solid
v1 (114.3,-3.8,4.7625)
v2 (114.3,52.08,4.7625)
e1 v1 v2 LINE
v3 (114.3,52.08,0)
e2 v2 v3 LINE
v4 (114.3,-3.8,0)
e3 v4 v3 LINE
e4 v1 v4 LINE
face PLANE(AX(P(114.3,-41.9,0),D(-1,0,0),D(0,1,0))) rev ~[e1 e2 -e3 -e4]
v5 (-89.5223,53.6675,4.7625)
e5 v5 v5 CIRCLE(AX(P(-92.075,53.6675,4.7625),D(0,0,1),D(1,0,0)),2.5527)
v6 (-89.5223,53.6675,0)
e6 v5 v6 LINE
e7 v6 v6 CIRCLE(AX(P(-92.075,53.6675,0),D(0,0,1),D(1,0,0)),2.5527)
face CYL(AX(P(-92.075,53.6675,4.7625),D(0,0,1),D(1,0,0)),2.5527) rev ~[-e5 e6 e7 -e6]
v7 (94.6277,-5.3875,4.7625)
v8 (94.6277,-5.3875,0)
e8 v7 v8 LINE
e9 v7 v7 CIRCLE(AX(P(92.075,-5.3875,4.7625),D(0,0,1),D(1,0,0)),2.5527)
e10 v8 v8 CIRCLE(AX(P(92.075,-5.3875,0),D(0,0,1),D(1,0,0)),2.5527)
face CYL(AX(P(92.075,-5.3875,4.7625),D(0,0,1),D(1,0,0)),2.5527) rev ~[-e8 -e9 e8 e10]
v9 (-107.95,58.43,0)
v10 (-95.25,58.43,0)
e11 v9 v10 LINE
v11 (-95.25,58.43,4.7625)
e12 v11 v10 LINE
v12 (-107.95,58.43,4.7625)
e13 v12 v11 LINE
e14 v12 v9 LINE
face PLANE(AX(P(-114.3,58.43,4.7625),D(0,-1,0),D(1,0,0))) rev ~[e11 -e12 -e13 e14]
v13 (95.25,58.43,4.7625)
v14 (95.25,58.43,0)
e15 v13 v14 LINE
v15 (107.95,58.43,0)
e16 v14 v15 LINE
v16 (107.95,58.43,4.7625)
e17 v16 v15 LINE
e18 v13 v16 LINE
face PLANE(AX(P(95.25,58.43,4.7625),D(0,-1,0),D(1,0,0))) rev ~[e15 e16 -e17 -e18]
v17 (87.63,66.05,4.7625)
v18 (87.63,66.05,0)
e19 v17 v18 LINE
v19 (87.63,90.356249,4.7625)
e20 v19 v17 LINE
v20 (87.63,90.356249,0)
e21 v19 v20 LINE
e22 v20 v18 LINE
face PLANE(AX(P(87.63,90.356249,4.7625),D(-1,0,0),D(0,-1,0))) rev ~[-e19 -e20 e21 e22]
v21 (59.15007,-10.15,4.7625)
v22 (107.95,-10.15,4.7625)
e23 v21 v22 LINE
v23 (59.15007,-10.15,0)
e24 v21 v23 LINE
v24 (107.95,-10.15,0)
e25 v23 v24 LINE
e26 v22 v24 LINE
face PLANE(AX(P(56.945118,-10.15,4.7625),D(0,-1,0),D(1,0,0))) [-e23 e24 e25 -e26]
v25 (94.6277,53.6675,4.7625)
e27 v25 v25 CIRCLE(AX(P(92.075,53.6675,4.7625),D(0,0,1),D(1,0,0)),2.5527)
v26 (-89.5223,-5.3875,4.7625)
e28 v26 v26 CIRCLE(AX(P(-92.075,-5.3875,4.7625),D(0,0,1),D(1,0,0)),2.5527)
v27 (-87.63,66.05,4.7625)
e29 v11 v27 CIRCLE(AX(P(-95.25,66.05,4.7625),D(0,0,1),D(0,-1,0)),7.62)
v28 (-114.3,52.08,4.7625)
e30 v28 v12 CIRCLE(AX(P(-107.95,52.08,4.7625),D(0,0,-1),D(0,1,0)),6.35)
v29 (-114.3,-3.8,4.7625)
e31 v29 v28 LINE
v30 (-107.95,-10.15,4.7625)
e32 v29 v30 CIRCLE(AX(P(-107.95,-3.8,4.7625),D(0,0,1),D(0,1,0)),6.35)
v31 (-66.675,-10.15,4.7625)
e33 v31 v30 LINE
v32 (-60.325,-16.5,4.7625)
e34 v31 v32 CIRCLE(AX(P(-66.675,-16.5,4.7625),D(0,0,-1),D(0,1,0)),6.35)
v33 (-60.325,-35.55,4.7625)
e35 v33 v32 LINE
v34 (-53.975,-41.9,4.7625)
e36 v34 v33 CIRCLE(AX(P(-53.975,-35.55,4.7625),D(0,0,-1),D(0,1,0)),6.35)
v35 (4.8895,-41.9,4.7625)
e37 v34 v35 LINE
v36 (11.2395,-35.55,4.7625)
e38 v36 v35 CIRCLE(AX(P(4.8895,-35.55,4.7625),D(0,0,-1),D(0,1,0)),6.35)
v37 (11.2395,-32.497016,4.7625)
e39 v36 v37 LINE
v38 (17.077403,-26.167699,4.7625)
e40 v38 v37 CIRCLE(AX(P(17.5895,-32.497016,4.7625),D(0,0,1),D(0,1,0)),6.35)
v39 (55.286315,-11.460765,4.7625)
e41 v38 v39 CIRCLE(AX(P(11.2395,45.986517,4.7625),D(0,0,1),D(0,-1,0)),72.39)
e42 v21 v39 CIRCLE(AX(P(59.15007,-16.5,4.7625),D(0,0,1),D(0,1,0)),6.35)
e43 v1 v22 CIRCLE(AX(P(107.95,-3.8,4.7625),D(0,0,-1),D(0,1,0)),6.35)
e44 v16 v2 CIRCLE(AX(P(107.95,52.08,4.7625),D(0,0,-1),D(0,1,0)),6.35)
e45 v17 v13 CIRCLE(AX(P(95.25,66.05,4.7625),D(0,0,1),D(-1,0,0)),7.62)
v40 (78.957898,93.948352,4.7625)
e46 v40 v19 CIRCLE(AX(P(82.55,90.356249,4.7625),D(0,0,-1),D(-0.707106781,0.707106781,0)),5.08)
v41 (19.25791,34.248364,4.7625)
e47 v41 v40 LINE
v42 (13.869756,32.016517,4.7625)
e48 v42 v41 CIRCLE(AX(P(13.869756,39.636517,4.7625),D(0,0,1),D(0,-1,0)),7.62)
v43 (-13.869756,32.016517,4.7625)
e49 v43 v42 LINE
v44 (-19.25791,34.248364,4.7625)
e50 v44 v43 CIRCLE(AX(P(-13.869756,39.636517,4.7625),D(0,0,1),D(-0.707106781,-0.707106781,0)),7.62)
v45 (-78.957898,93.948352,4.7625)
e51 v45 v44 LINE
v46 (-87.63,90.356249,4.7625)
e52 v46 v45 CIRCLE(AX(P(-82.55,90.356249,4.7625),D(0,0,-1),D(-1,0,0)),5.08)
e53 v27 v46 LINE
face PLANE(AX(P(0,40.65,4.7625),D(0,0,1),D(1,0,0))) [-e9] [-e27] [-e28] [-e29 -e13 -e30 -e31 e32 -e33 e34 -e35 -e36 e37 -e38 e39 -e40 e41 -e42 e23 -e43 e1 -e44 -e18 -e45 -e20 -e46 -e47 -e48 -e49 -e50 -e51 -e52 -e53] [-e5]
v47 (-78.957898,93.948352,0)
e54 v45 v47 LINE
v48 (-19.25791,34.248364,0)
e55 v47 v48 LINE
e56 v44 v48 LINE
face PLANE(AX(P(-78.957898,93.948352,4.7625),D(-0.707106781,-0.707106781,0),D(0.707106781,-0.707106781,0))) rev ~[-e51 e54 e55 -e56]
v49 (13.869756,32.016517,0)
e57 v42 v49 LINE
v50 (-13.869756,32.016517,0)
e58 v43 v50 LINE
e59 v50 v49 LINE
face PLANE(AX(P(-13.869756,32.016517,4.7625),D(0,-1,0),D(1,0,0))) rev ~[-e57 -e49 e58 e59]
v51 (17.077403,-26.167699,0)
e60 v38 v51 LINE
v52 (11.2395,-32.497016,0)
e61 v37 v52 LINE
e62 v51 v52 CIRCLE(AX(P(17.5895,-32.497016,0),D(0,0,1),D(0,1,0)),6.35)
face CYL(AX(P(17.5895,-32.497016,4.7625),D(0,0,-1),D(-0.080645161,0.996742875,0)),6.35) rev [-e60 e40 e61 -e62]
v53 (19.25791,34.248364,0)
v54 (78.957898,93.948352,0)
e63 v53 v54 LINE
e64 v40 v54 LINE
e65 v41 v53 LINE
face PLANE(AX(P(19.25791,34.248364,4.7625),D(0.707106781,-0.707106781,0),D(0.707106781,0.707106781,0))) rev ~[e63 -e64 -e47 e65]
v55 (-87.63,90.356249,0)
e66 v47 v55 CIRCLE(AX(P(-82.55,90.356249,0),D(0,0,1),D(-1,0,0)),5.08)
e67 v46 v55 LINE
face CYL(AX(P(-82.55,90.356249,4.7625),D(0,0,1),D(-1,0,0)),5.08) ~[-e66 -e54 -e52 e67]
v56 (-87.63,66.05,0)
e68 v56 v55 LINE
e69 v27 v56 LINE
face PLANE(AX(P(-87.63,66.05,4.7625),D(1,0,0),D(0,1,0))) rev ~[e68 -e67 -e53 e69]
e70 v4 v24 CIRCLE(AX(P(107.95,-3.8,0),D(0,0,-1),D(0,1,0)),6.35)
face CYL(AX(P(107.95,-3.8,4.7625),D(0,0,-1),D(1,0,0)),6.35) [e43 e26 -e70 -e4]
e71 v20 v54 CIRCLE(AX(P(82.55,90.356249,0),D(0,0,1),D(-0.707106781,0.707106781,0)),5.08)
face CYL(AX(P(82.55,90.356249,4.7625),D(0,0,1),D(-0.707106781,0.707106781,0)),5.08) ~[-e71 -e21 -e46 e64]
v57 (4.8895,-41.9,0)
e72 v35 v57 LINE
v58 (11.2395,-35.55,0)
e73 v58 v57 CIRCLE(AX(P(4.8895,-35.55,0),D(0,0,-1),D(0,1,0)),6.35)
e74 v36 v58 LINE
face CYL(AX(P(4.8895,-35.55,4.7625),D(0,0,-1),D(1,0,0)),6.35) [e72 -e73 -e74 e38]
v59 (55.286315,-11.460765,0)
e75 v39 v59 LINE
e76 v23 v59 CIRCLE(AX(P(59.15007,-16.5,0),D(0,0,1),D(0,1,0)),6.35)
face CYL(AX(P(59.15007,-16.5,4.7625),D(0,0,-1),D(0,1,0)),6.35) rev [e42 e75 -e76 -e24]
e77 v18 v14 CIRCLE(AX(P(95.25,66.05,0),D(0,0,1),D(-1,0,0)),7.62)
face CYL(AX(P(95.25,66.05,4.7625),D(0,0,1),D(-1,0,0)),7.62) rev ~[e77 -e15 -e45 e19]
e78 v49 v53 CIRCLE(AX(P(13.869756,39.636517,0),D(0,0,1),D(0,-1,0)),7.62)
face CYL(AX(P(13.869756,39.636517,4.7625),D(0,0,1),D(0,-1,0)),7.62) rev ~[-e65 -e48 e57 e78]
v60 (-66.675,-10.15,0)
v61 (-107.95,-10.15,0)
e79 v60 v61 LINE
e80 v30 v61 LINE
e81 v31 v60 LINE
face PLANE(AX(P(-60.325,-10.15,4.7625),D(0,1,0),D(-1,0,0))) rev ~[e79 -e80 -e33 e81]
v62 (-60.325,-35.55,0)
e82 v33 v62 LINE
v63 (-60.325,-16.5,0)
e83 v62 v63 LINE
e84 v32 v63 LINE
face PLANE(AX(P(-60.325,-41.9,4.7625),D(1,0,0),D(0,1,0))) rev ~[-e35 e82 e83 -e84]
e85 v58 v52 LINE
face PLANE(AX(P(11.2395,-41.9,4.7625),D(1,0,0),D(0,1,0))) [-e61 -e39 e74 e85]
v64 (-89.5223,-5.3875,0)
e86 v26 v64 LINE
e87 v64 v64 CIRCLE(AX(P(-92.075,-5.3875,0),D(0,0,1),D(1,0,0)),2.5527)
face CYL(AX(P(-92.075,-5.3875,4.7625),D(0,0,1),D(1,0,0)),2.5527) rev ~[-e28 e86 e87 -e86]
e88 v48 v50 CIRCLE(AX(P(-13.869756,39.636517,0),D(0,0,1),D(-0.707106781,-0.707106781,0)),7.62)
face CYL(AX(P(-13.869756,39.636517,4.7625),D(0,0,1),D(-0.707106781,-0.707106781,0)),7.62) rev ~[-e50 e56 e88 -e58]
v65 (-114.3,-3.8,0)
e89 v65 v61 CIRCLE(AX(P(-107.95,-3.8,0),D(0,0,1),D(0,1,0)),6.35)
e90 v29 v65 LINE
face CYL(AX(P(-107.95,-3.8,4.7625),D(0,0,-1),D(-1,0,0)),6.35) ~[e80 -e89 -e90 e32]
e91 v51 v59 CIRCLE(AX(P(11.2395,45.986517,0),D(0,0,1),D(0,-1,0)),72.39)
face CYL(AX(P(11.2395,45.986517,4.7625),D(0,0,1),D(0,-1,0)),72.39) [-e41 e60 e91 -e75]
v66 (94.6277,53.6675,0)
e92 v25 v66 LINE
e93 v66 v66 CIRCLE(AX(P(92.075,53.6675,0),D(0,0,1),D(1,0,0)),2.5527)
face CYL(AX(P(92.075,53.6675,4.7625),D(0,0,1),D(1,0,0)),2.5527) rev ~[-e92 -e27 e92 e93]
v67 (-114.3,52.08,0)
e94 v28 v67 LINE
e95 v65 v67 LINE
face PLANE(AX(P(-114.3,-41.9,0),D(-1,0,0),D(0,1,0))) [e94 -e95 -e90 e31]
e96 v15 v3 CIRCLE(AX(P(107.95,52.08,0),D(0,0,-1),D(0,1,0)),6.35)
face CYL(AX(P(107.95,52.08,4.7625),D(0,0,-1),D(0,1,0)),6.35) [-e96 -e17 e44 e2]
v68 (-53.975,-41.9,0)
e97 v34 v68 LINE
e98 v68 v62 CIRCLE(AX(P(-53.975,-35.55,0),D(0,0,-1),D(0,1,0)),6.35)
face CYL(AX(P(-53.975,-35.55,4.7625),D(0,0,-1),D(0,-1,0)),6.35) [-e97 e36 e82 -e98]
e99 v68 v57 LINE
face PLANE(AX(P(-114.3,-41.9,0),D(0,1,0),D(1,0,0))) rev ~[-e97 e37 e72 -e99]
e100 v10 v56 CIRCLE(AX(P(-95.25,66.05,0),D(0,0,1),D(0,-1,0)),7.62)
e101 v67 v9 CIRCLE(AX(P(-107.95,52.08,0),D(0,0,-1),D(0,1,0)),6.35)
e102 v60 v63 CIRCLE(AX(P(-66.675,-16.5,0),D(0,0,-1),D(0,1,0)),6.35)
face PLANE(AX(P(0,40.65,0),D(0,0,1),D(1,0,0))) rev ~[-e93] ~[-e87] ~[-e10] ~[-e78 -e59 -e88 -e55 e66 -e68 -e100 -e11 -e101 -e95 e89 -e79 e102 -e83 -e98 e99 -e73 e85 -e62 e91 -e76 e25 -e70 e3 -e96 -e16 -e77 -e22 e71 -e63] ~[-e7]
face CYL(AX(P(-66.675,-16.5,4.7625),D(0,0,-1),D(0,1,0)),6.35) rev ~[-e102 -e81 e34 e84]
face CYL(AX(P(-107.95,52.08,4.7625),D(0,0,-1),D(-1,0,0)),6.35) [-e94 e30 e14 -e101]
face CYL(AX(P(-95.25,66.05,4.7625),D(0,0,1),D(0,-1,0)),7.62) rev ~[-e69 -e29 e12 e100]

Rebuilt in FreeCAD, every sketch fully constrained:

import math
import FreeCAD as App
import Part
import Sketcher

V = App.Vector
Q = App.Units.Quantity


def edges_at(feature, points):
    """Names of the edges that pass closest to the given points."""
    edges = feature.Shape.Edges
    near = lambda p: min(range(len(edges)), key=lambda i: edges[i].distToShape(Part.Vertex(*p))[0])
    return sorted({f"Edge{near(p) + 1}" for p in points})

doc = App.newDocument("Part")
body = doc.addObject("PartDesign::Body", "Body")

sketch1 = body.newObject("Sketcher::SketchObject", "Sketch")
sketch1.AttachmentSupport = (doc.getObject("XY_Plane"), [""])
sketch1.MapMode = "FlatFace"
sketch1.addGeometry([
    Part.LineSegment(V(-114.3, 123.2, 0), V(-114.3, -41.9, 0)),
    Part.LineSegment(V(-114.3, -41.9, 0), V(114.3, -41.9, 0)),
    Part.LineSegment(V(114.3, -41.9, 0), V(114.3, 123.2, 0)),
    Part.LineSegment(V(114.3, 123.2, 0), V(-114.3, 123.2, 0)),
], False)
sketch1.addConstraint([
    Sketcher.Constraint("Coincident", 0, 2, 1, 1),
    Sketcher.Constraint("Coincident", 1, 2, 2, 1),
    Sketcher.Constraint("Coincident", 2, 2, 3, 1),
    Sketcher.Constraint("Coincident", 3, 2, 0, 1),
    Sketcher.Constraint("Vertical", 0),
    Sketcher.Constraint("Horizontal", 1),
    Sketcher.Constraint("Vertical", 2),
    Sketcher.Constraint("Horizontal", 3),
    Sketcher.Constraint("DistanceX", 1, 1, 1, 2, Q("9 in")),
    Sketcher.Constraint("DistanceY", 0, 2, 0, 1, Q("6.5 in")),
    Sketcher.Constraint("DistanceX", 0, 2, -1, 1, Q("4.5 in")),
    Sketcher.Constraint("DistanceY", 0, 2, -1, 1, 41.9),
])
pad1 = body.newObject("PartDesign::Pad", "Pad")
pad1.Profile = sketch1
pad1.Length = Q("0.1875 in")

sketch2 = body.newObject("Sketcher::SketchObject", "Sketch001")
sketch2.AttachmentSupport = (doc.getObject("XY_Plane"), [""])
sketch2.MapMode = "FlatFace"
sketch2.AttachmentOffset = App.Placement(V(0, 0, 0.1875 * 25.4), App.Rotation())
sketch2.addGeometry([
    Part.Circle(V(-38.227, 85.227, 0), V(0, 0, 1), 12.7),
    Part.Circle(V(38.227, 85.227, 0), V(0, 0, 1), 12.7),
    Part.Circle(V(11.2268, 45.984, 0), V(0, 0, 1), 12.7),
], False)
sketch2.addConstraint([
    Sketcher.Constraint("Equal", 0, 1),
    Sketcher.Constraint("Equal", 1, 2),
    Sketcher.Constraint("Symmetric", 0, 3, 1, 3, -2),
    Sketcher.Constraint("Diameter", 0, Q("1 in")),
    Sketcher.Constraint("DistanceX", 0, 3, 1, 3, Q("3.01 in")),
    Sketcher.Constraint("DistanceX", -1, 1, 2, 3, Q("0.442 in")),
    Sketcher.Constraint("DistanceY", 2, 3, 1, 3, Q("1.545 in")),
    Sketcher.Constraint("DistanceY", -1, 1, 0, 3, 85.227),
])
doc.recompute()
hole = body.newObject("PartDesign::Hole", "Hole")
hole.Profile = sketch2
hole.ThreadType = "None"
hole.Diameter = Q("1 in")
hole.DepthType = "ThroughAll"

sketch3 = body.newObject("Sketcher::SketchObject", "Sketch002")
sketch3.AttachmentSupport = (doc.getObject("XY_Plane"), [""])
sketch3.MapMode = "FlatFace"
sketch3.addGeometry(Part.Circle(V(0, 180.35, 0), V(0, 0, 1), 66.675), False)
sketch3.addConstraint([
    Sketcher.Constraint("PointOnObject", 0, 3, -2),
    Sketcher.Constraint("Diameter", 0, Q("5.25 in")),
    Sketcher.Constraint("DistanceY", -1, 1, 0, 3, 180.35),
])
pocket1 = body.newObject("PartDesign::Pocket", "Pocket")
pocket1.Profile = sketch3
pocket1.Type = "ThroughAll"
pocket1.Reversed = True
doc.recompute()

fillet = body.newObject("PartDesign::Fillet", "Fillet")
fillet.Base = (pocket1, edges_at(pocket1, [
    (-114.3, 123.2, 2.381),
    (114.3, 123.2, 2.381),
    (114.3, -41.9, 2.381),
    (-114.3, -41.9, 2.381),
]))
fillet.Radius = Q("0.25 in")

sketch4 = body.newObject("Sketcher::SketchObject", "Sketch003")
sketch4.AttachmentSupport = (doc.getObject("XY_Plane"), [""])
sketch4.MapMode = "FlatFace"
sketch4.AttachmentOffset = App.Placement(V(0, 0, 0.1875 * 25.4), App.Rotation())
sketch4.addGeometry([
    Part.LineSegment(V(-107.95, -41.9, 0), V(-60.325, -41.9, 0)),
    Part.LineSegment(V(-60.325, -41.9, 0), V(-60.325, -10.15, 0)),
    Part.LineSegment(V(-60.325, -10.15, 0), V(-114.3, -10.15, 0)),
    Part.LineSegment(V(-114.3, -10.15, 0), V(-114.3, -35.55, 0)),
    Part.ArcOfCircle(Part.Circle(V(-107.95, -35.55, 0), V(0, 0, 1), 6.35), math.radians(180), math.radians(270)),
    Part.LineSegment(V(11.2395, -26.403483, 0), V(11.2395, -41.9, 0)),
    Part.LineSegment(V(11.2395, -41.9, 0), V(107.95, -41.9, 0)),
    Part.ArcOfCircle(Part.Circle(V(107.95, -35.55, 0), V(0, 0, 1), 6.35), math.radians(-90), math.radians(0)),
    Part.LineSegment(V(114.3, -35.55, 0), V(114.3, -10.15, 0)),
    Part.LineSegment(V(114.3, -10.15, 0), V(56.945118, -10.15, 0)),
    Part.ArcOfCircle(Part.Circle(V(11.2395, 45.986517, 0), V(0, 0, 1), 72.39), math.radians(-90), math.radians(-50.84797)),
    Part.LineSegment(V(-114.3, 58.43, 0), V(-95.25, 58.43, 0)),
    Part.ArcOfCircle(Part.Circle(V(-95.25, 66.05, 0), V(0, 0, 1), 7.62), math.radians(-90), math.radians(0)),
    Part.LineSegment(V(-87.63, 66.05, 0), V(-87.63, 90.356249, 0)),
    Part.ArcOfCircle(Part.Circle(V(-82.55, 90.356249, 0), V(0, 0, 1), 5.08), math.radians(45), math.radians(180)),
    Part.LineSegment(V(-78.957898, 93.948352, 0), V(-19.25791, 34.248364, 0)),
    Part.ArcOfCircle(Part.Circle(V(-13.869756, 39.636517, 0), V(0, 0, 1), 7.62), math.radians(-135), math.radians(-90)),
    Part.LineSegment(V(-13.869756, 32.016517, 0), V(13.869756, 32.016517, 0)),
    Part.ArcOfCircle(Part.Circle(V(13.869756, 39.636517, 0), V(0, 0, 1), 7.62), math.radians(-90), math.radians(-45)),
    Part.LineSegment(V(19.25791, 34.248364, 0), V(78.957898, 93.948352, 0)),
    Part.ArcOfCircle(Part.Circle(V(82.55, 90.356249, 0), V(0, 0, 1), 5.08), math.radians(0), math.radians(135)),
    Part.LineSegment(V(87.63, 90.356249, 0), V(87.63, 66.05, 0)),
    Part.ArcOfCircle(Part.Circle(V(95.25, 66.05, 0), V(0, 0, 1), 7.62), math.radians(180), math.radians(270)),
    Part.LineSegment(V(95.25, 58.43, 0), V(114.3, 58.43, 0)),
    Part.LineSegment(V(114.3, 58.43, 0), V(114.3, 163.646139, 0)),
    Part.LineSegment(V(114.3, 163.646139, 0), V(-114.3, 163.646139, 0)),
    Part.LineSegment(V(-114.3, 163.646139, 0), V(-114.3, 58.43, 0)),
], False)
sketch4.addConstraint([
    Sketcher.Constraint("Coincident", 0, 2, 1, 1),
    Sketcher.Constraint("Coincident", 1, 2, 2, 1),
    Sketcher.Constraint("Coincident", 2, 2, 3, 1),
    Sketcher.Constraint("Tangent", 3, 2, 4, 1),
    Sketcher.Constraint("Tangent", 4, 2, 0, 1),
    Sketcher.Constraint("Coincident", 5, 2, 6, 1),
    Sketcher.Constraint("Tangent", 6, 2, 7, 1),
    Sketcher.Constraint("Tangent", 7, 2, 8, 1),
    Sketcher.Constraint("Coincident", 8, 2, 9, 1),
    Sketcher.Constraint("Coincident", 9, 2, 10, 2),
    Sketcher.Constraint("Coincident", 10, 1, 5, 1),
    Sketcher.Constraint("Tangent", 11, 2, 12, 1),
    Sketcher.Constraint("Tangent", 12, 2, 13, 1),
    Sketcher.Constraint("Tangent", 13, 2, 14, 2),
    Sketcher.Constraint("Tangent", 14, 1, 15, 1),
    Sketcher.Constraint("Tangent", 15, 2, 16, 1),
    Sketcher.Constraint("Tangent", 16, 2, 17, 1),
    Sketcher.Constraint("Tangent", 17, 2, 18, 1),
    Sketcher.Constraint("Tangent", 18, 2, 19, 1),
    Sketcher.Constraint("Tangent", 19, 2, 20, 2),
    Sketcher.Constraint("Tangent", 20, 1, 21, 1),
    Sketcher.Constraint("Tangent", 21, 2, 22, 1),
    Sketcher.Constraint("Tangent", 22, 2, 23, 1),
    Sketcher.Constraint("Coincident", 23, 2, 24, 1),
    Sketcher.Constraint("Coincident", 24, 2, 25, 1),
    Sketcher.Constraint("Coincident", 25, 2, 26, 1),
    Sketcher.Constraint("Coincident", 26, 2, 11, 1),
    Sketcher.Constraint("Horizontal", 0),
    Sketcher.Constraint("Vertical", 1),
    Sketcher.Constraint("Horizontal", 2),
    Sketcher.Constraint("Vertical", 3),
    Sketcher.Constraint("Vertical", 5),
    Sketcher.Constraint("Horizontal", 6),
    Sketcher.Constraint("Vertical", 8),
    Sketcher.Constraint("Horizontal", 9),
    Sketcher.Constraint("Horizontal", 11),
    Sketcher.Constraint("Vertical", 13),
    Sketcher.Constraint("Horizontal", 17),
    Sketcher.Constraint("Vertical", 21),
    Sketcher.Constraint("Horizontal", 23),
    Sketcher.Constraint("Vertical", 24),
    Sketcher.Constraint("Horizontal", 25),
    Sketcher.Constraint("Vertical", 26),
    Sketcher.Constraint("Equal", 4, 7),
    Sketcher.Constraint("Equal", 12, 16),
    Sketcher.Constraint("Equal", 16, 18),
    Sketcher.Constraint("Equal", 14, 20),
    Sketcher.Constraint("Equal", 18, 22),
    Sketcher.Constraint("Symmetric", 4, 3, 7, 3, -2),
    Sketcher.Constraint("Symmetric", 14, 3, 20, 3, -2),
    Sketcher.Constraint("Symmetric", 23, 2, 26, 2, -2),
    Sketcher.Constraint("Perpendicular", 15, 19),
    Sketcher.Constraint("Horizontal", 2, 2, 8, 2),
    Sketcher.Constraint("Horizontal", 15, 2, 18, 2),
    Sketcher.Constraint("Vertical", 10, 3, 5, 2),
    Sketcher.Constraint("Vertical", 8, 2, 23, 2),
    Sketcher.Constraint("Radius", 12, Q("0.3 in")),
    Sketcher.Constraint("Radius", 14, Q("0.2 in")),
    Sketcher.Constraint("DistanceX", 25, 2, 25, 1, Q("9 in")),
    Sketcher.Constraint("DistanceY", 3, 2, 3, 1, Q("1 in")),
    Sketcher.Constraint("Radius", 4, Q("0.25 in")),
    Sketcher.Constraint("Radius", 10, Q("2.85 in")),
    Sketcher.Constraint("DistanceY", 4, 3, 12, 3, Q("4 in")),
    Sketcher.Constraint("DistanceX", 12, 3, 7, 3, Q("8 in")),
    Sketcher.Constraint("DistanceY", 10, 1, 18, 3, Q("2.6 in")),
    Sketcher.Constraint("DistanceX", 0, 1, 0, 2, Q("1.875 in")),
    Sketcher.Constraint("DistanceX", 6, 1, 6, 2, Q("3.8075 in")),
    Sketcher.Constraint("DistanceY", 13, 1, 13, 2, 24.306249),
    Sketcher.Constraint("DistanceY", 24, 1, 24, 2, 105.216139),
    Sketcher.Constraint("DistanceY", 4, 3, -1, 1, 35.55),
    Sketcher.Constraint("DistanceX", 9, 2, 9, 1, 57.354882),
])
pocket2 = body.newObject("PartDesign::Pocket", "Pocket001")
pocket2.Profile = sketch4
pocket2.Type = "ThroughAll"
doc.recompute()

fillet2 = body.newObject("PartDesign::Fillet", "Fillet001")
fillet2.Base = (pocket2, edges_at(pocket2, [
    (11.239, -41.9, 2.381),
    (11.239, -26.403, 2.381),
    (56.945, -10.15, 2.381),
    (114.3, -10.15, 2.381),
    (-60.325, -10.15, 2.381),
    (-60.325, -41.9, 2.381),
    (-114.3, -10.15, 2.381),
    (-114.3, 58.43, 2.381),
    (114.3, 58.43, 2.381),
]))
fillet2.Radius = Q("0.25 in")

sketch5 = body.newObject("Sketcher::SketchObject", "Sketch004")
sketch5.AttachmentSupport = (doc.getObject("XY_Plane"), [""])
sketch5.MapMode = "FlatFace"
sketch5.AttachmentOffset = App.Placement(V(0, 0, 0.1875 * 25.4), App.Rotation())
sketch5.addGeometry([
    Part.Circle(V(-92.075, 53.6675, 0), V(0, 0, 1), 2.5527),
    Part.Circle(V(92.075, 53.6675, 0), V(0, 0, 1), 2.5527),
    Part.Circle(V(92.075, -5.3875, 0), V(0, 0, 1), 2.5527),
    Part.Circle(V(-92.075, -5.3875, 0), V(0, 0, 1), 2.5527),
], False)
sketch5.addConstraint([
    Sketcher.Constraint("Equal", 0, 1),
    Sketcher.Constraint("Equal", 1, 2),
    Sketcher.Constraint("Equal", 2, 3),
    Sketcher.Constraint("Symmetric", 0, 3, 1, 3, -2),
    Sketcher.Constraint("Symmetric", 2, 3, 3, 3, -2),
    Sketcher.Constraint("Vertical", 1, 3, 2, 3),
    Sketcher.Constraint("Diameter", 0, Q("0.201 in")),
    Sketcher.Constraint("DistanceX", 0, 3, 1, 3, Q("7.25 in")),
    Sketcher.Constraint("DistanceY", 2, 3, 1, 3, Q("2.325 in")),
    Sketcher.Constraint("DistanceY", -1, 1, 0, 3, 53.6675),
])
pocket3 = body.newObject("PartDesign::Pocket", "Pocket002")
pocket3.Profile = sketch5
pocket3.Type = "ThroughAll"

doc.recompute()
